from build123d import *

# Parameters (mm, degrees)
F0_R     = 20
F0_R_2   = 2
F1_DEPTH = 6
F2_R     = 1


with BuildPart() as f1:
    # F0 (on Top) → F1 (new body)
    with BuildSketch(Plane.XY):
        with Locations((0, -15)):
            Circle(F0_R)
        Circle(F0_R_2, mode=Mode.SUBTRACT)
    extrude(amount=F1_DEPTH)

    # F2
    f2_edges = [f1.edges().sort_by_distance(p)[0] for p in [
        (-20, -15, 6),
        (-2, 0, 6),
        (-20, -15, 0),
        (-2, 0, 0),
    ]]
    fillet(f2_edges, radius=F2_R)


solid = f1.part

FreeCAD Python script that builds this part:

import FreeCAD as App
import Part
import Sketcher
from FreeCAD import Vector


def edges_at(feature, points):
    """Names of the edges that pass closest to the given points."""
    edges = feature.Shape.Edges
    near = lambda p: min(range(len(edges)), key=lambda i: edges[i].distToShape(Part.Vertex(*p))[0])
    return sorted({f"Edge{near(p) + 1}" for p in points})

doc = App.newDocument("Part")
body = doc.addObject("PartDesign::Body", "Body")

# Sketch on XY plane
sketch1 = body.newObject("Sketcher::SketchObject", "Sketch")
sketch1.AttachmentSupport = (doc.getObject("XY_Plane"), [""])
sketch1.MapMode = "FlatFace"
sketch1.addGeometry([
    Part.Circle(Vector(0, -15, 0), Vector(0, 0, 1), 20),
    Part.Circle(Vector(0, 0, 0), Vector(0, 0, 1), 2),
], False)
sketch1.addConstraint([
    Sketcher.Constraint("Coincident", 1, 3, -1, 1),
    Sketcher.Constraint("PointOnObject", 0, 3, -2),
    Sketcher.Constraint("Diameter", 0, 40.0),
    Sketcher.Constraint("Diameter", 1, 4.0),
    Sketcher.Constraint("DistanceY", 0, 3, -1, 1, 15.0),
])
pad1 = body.newObject("PartDesign::Pad", "Pad")
pad1.Profile = sketch1
pad1.Length = 6
doc.recompute()

fillet = body.newObject("PartDesign::Fillet", "Fillet")
fillet.Base = (pad1, edges_at(pad1, [
    (-20, -15, 6),
    (-2, 0, 6),
    (-20, -15, 0),
    (-2, 0, 0),
]))
fillet.Radius = 1

doc.recompute()
